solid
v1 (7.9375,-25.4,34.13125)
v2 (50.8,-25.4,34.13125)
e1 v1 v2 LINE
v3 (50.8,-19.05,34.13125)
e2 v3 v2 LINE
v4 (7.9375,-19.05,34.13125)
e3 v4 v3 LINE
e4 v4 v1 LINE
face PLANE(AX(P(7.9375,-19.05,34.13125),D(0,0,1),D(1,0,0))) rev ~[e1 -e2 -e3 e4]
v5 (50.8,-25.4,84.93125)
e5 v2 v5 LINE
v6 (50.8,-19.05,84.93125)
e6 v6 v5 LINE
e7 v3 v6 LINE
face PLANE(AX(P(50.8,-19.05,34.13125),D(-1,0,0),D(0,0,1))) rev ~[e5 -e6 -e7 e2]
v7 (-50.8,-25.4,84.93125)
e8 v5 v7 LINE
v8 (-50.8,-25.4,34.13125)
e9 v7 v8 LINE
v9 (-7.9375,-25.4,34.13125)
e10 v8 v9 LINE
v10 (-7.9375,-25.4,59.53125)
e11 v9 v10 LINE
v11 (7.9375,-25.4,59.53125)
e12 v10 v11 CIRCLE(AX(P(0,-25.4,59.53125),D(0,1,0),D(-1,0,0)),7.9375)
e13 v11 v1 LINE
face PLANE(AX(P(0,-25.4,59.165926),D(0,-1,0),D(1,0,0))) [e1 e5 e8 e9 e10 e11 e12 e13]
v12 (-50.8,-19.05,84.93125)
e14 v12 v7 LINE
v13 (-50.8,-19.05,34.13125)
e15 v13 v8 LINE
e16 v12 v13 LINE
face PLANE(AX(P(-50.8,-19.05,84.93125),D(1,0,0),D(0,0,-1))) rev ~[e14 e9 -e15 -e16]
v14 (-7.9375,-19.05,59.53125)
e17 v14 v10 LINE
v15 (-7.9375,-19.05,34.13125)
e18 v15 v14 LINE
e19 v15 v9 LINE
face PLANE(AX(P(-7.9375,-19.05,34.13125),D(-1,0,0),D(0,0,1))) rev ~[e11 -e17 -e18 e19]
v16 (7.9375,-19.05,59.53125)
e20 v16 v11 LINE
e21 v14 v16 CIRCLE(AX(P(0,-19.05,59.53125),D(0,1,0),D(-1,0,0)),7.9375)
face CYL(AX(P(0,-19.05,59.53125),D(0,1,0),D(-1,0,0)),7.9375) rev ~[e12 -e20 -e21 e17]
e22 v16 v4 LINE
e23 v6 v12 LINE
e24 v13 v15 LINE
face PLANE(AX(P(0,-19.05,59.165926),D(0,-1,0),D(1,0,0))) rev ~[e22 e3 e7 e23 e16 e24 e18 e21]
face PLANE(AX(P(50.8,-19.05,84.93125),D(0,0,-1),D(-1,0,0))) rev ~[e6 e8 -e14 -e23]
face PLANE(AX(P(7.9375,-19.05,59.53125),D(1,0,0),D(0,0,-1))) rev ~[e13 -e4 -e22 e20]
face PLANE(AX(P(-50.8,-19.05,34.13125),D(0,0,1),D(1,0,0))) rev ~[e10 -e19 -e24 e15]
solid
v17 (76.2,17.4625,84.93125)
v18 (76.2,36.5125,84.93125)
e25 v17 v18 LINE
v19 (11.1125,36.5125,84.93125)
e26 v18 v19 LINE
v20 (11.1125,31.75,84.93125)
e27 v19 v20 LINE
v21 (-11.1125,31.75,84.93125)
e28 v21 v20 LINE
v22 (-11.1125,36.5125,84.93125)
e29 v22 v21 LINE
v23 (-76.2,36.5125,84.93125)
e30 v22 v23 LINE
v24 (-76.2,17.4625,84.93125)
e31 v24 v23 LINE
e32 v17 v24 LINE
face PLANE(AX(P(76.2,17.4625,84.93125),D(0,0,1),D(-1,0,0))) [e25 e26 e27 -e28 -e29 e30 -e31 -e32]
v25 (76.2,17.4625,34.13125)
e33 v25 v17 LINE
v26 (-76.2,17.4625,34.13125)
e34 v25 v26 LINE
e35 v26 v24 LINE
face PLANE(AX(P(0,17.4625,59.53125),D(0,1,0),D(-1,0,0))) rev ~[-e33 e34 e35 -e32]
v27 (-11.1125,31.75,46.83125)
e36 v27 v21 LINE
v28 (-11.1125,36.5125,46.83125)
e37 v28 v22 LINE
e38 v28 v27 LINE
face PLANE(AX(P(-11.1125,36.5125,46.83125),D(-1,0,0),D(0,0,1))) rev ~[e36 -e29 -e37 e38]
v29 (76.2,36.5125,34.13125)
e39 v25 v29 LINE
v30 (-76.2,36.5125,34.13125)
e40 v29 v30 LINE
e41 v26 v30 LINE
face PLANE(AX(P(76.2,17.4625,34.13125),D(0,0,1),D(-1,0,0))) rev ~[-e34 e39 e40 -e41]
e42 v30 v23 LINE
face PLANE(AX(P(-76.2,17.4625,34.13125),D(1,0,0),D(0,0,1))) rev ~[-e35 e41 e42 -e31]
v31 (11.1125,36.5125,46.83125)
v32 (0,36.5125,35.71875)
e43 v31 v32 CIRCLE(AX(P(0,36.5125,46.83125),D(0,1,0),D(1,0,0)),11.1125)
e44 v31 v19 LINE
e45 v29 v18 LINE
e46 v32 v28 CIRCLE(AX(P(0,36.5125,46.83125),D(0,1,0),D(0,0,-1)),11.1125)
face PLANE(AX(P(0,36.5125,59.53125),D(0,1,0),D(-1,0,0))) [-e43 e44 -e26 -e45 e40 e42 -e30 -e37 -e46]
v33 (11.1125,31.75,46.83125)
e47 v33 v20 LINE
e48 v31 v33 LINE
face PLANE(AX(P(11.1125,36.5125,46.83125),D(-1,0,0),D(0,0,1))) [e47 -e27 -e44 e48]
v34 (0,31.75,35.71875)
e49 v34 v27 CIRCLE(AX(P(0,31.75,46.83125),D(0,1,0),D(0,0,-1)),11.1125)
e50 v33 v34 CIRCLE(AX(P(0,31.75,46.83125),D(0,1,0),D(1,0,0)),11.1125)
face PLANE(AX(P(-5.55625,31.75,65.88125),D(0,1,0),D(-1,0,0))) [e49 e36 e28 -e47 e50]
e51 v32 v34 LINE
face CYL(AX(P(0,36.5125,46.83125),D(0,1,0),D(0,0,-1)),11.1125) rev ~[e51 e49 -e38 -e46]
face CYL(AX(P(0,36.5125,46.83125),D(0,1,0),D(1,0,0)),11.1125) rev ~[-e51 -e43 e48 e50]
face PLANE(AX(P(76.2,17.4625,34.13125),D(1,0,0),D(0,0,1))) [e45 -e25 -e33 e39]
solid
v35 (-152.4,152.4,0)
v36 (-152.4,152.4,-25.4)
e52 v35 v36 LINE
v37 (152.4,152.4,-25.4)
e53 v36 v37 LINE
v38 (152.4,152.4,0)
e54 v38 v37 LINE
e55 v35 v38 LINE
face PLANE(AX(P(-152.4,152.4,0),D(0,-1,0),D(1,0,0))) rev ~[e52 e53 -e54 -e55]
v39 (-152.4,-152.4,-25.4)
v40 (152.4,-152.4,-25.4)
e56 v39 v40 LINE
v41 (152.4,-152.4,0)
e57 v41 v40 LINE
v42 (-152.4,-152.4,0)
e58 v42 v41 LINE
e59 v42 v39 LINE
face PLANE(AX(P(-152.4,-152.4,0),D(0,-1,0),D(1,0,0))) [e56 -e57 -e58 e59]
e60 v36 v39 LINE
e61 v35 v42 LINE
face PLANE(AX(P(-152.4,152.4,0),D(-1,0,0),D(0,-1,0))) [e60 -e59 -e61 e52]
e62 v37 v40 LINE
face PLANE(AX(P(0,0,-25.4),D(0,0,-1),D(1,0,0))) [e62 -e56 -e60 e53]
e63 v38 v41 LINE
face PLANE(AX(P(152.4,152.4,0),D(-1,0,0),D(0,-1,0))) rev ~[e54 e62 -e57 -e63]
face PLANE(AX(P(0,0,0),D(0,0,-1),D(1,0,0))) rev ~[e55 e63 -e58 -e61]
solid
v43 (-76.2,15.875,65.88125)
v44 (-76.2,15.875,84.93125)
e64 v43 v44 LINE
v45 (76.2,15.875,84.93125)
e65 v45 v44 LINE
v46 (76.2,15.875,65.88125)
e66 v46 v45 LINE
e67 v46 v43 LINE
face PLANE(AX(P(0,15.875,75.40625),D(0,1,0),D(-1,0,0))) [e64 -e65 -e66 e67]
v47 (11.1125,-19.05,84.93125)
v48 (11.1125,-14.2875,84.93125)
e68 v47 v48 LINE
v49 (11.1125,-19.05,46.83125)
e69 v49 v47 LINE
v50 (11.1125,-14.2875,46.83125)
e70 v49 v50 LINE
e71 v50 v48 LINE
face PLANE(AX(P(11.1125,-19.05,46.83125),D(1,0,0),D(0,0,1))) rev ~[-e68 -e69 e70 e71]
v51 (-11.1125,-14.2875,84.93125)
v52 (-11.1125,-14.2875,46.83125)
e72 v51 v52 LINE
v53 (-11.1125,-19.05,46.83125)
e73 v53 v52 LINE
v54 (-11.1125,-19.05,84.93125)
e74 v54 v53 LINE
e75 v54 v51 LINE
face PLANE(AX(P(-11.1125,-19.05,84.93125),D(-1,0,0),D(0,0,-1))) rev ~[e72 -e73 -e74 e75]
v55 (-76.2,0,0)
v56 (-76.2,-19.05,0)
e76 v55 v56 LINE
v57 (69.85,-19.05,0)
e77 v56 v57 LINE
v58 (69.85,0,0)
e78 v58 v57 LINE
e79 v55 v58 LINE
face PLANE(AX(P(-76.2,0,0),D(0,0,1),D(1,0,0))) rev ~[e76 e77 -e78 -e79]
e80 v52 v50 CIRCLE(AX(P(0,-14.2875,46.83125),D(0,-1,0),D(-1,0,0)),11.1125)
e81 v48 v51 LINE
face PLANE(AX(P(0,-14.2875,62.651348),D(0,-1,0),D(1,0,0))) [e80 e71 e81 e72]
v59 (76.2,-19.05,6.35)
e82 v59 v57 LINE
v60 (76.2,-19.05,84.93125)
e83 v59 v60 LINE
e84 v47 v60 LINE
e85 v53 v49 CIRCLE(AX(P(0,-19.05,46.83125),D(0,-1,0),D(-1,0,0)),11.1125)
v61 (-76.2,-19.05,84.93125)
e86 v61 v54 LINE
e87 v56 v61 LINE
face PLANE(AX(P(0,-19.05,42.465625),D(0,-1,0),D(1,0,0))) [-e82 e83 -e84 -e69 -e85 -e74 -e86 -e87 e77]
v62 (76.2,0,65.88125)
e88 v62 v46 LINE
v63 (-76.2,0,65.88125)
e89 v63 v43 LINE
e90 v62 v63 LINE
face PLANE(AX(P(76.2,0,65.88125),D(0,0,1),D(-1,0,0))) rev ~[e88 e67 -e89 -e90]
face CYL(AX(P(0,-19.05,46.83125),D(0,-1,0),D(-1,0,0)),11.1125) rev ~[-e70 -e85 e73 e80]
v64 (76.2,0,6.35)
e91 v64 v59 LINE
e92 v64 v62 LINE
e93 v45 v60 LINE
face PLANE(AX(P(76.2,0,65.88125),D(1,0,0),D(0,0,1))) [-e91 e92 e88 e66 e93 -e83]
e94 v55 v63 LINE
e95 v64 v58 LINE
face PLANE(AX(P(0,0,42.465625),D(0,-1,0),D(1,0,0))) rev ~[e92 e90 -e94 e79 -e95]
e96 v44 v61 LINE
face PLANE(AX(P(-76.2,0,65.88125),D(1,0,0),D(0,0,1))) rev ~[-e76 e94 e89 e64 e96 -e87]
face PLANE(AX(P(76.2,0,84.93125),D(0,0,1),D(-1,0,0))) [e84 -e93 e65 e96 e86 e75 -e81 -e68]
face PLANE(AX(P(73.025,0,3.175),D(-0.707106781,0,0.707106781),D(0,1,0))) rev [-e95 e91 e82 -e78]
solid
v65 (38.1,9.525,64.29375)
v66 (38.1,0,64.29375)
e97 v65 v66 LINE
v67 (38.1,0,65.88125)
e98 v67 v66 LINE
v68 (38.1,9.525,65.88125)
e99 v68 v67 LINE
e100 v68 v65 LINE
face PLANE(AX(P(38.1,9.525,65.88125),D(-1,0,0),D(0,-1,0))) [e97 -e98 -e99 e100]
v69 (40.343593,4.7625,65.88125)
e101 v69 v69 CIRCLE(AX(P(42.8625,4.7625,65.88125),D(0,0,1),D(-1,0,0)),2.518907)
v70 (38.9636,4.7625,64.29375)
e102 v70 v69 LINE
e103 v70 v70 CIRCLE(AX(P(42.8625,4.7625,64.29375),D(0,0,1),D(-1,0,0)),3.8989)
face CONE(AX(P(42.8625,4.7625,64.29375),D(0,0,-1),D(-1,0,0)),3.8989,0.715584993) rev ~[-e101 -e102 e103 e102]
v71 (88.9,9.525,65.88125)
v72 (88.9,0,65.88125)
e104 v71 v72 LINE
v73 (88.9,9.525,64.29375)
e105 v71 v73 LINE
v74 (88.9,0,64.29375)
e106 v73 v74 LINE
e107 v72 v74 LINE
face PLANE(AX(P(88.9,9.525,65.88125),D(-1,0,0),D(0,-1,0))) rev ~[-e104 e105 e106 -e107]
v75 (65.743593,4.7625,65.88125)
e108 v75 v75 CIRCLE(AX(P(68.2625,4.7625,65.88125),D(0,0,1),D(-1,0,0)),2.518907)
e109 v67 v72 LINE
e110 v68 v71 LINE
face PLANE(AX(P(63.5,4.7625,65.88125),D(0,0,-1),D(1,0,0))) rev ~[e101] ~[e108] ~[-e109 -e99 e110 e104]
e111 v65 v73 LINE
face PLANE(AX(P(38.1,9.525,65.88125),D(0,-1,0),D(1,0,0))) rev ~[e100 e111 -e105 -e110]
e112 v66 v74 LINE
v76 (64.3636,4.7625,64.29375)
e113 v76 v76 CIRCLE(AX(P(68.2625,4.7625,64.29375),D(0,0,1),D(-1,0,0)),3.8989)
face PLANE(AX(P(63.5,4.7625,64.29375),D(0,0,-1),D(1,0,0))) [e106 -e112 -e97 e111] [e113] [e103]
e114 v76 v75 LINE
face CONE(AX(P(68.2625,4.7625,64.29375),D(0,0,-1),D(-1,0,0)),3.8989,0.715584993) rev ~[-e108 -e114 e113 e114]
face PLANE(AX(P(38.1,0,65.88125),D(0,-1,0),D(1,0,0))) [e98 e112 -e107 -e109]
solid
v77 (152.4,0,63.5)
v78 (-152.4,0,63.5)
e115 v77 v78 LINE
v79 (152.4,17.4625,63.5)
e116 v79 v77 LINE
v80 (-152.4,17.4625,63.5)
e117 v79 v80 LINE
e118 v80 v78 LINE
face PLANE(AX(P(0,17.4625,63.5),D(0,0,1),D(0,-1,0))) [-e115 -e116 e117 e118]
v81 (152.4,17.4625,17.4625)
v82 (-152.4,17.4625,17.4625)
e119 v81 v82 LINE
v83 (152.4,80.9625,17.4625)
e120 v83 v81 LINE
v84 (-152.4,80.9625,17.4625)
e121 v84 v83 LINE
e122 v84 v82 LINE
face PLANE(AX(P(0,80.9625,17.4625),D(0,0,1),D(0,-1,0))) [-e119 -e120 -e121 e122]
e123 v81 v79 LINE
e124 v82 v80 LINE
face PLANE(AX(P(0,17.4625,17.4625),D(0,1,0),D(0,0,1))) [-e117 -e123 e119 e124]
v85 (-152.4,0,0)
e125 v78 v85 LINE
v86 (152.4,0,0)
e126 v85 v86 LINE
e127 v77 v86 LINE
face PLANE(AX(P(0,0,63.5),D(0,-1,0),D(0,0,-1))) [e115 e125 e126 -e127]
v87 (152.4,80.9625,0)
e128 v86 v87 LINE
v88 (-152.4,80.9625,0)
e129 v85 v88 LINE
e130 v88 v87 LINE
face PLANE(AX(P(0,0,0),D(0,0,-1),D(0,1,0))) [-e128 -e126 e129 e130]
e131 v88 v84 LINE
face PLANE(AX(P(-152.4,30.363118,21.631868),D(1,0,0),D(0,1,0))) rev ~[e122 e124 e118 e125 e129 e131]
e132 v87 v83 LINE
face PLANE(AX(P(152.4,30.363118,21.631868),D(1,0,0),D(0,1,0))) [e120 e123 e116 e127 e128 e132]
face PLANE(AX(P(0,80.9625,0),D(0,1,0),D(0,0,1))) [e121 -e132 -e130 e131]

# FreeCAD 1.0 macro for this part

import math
import FreeCAD as App
import Part
import Sketcher
from FreeCAD import Vector
Q = App.Units.Quantity


def edges_at(feature, points):
    """Names of the edges that pass closest to the given points."""
    edges = feature.Shape.Edges
    near = lambda p: min(range(len(edges)), key=lambda i: edges[i].distToShape(Part.Vertex(*p))[0])
    return sorted({f"Edge{near(p) + 1}" for p in points})


def add_polygon(sketch, points):
    """Adds a closed chain of lines whose ends are joined by coincident constraints."""
    first, n = sketch.GeometryCount, len(points)
    for a, b in zip(points, points[1:] + points[:1]):
        sketch.addGeometry(Part.LineSegment(App.Vector(*a, 0), App.Vector(*b, 0)), False)
    for i in range(n):
        sketch.addConstraint(Sketcher.Constraint("Coincident", first + i, 2, first + (i + 1) % n, 1))

doc = App.newDocument("Part")
body = doc.addObject("PartDesign::Body", "Body")

# Sketch on YZ plane
sketch1 = body.newObject("Sketcher::SketchObject", "Sketch")
sketch1.AttachmentSupport = (doc.getObject("YZ_Plane"), [""])
sketch1.MapMode = "FlatFace"
add_polygon(sketch1, [(0, 64), (0, 0), (81, 0), (81, 17), (17, 17), (17, 64)])  # lines 0-5
sketch1.addConstraint([
    Sketcher.Constraint("Vertical", 0),
    Sketcher.Constraint("Horizontal", 1),
    Sketcher.Constraint("Vertical", 2),
    Sketcher.Constraint("Horizontal", 3),
    Sketcher.Constraint("Vertical", 4),
    Sketcher.Constraint("Horizontal", 5),
    Sketcher.Constraint("Coincident", 0, 2, -1, 1),
    Sketcher.Constraint("Equal", 3, 0),
    Sketcher.Constraint("Equal", 5, 2),
    Sketcher.Constraint("DistanceX", 3, 2, 3, 1, Q("2.5 in")),
    Sketcher.Constraint("DistanceX", 1, 1, 1, 2, Q("3.1875 in")),
])
pad1 = body.newObject("PartDesign::Pad", "Pad")
pad1.Profile = sketch1
pad1.Length = Q("12 in")
pad1.Midplane = True
body2 = doc.addObject("PartDesign::Body", "Body001")

# Sketch on XY plane
sketch2 = body2.newObject("Sketcher::SketchObject", "Sketch001")
sketch2.AttachmentSupport = (doc.getObject("XY_Plane001"), [""])
sketch2.MapMode = "FlatFace"
add_polygon(sketch2, [(-152, -152), (-152, 152), (152, 152), (152, -152)])  # lines 0-3
sketch2.addConstraint([
    Sketcher.Constraint("Vertical", 0),
    Sketcher.Constraint("Horizontal", 1),
    Sketcher.Constraint("Vertical", 2),
    Sketcher.Constraint("Horizontal", 3),
    Sketcher.Constraint("Symmetric", 0, 2, 2, 2, -1, 1),
    Sketcher.Constraint("Equal", 3, 0),
    Sketcher.Constraint("DistanceX", 1, 1, 1, 2, Q("12 in")),
])
pad2 = body2.newObject("PartDesign::Pad", "Pad001")
pad2.Profile = sketch2
pad2.Length = Q("1 in")
pad2.Reversed = True
body3 = doc.addObject("PartDesign::Body", "Body002")

# Sketch on XZ plane
sketch3 = body3.newObject("Sketcher::SketchObject", "Sketch002")
sketch3.AttachmentSupport = (doc.getObject("XZ_Plane002"), [""])
sketch3.MapMode = "FlatFace"
add_polygon(sketch3, [(-76, 85), (-76, 0), (76, 0), (76, 85)])  # lines 0-3
sketch3.addConstraint([
    Sketcher.Constraint("Vertical", 0),
    Sketcher.Constraint("Horizontal", 1),
    Sketcher.Constraint("Vertical", 2),
    Sketcher.Constraint("Horizontal", 3),
    Sketcher.Constraint("Symmetric", 0, 2, 1, 2, -1, 1),
    Sketcher.Constraint("DistanceX", 1, 1, 1, 2, Q("6 in")),
    Sketcher.Constraint("DistanceY", 0, 2, 0, 1, Q("3.34375 in")),
])
pad3 = body3.newObject("PartDesign::Pad", "Pad002")
pad3.Profile = sketch3
pad3.Length = Q("0.75 in")

# Sketch on XZ plane
sketch4 = body3.newObject("Sketcher::SketchObject", "Sketch003")
sketch4.AttachmentSupport = (doc.getObject("XZ_Plane002"), [""])
sketch4.MapMode = "FlatFace"
add_polygon(sketch4, [(76, 85), (76, 66), (-76, 66), (-76, 85)])  # lines 0-3
sketch4.addConstraint([
    Sketcher.Constraint("Vertical", 0),
    Sketcher.Constraint("Horizontal", 1),
    Sketcher.Constraint("Vertical", 2),
    Sketcher.Constraint("Horizontal", 3),
    Sketcher.Constraint("DistanceX", 1, 2, 1, 1, Q("6 in")),
    Sketcher.Constraint("DistanceX", -1, 1, 0, 2, Q("3 in")),
    Sketcher.Constraint("DistanceY", 0, 2, 0, 1, Q("0.75 in")),
    Sketcher.Constraint("DistanceY", -1, 1, 0, 2, Q("2.59375 in")),
])
pad4 = body3.newObject("PartDesign::Pad", "Pad003")
pad4.Profile = sketch4
pad4.Length = Q("0.625 in")
pad4.Reversed = True
doc.recompute()

chamfer = body3.newObject("PartDesign::Chamfer", "Chamfer")
chamfer.Base = (pad4, edges_at(pad4, [(76.2, -9.525, 0)]))
chamfer.Size = Q("0.25 in")

# Sketch on XZ plane
sketch5 = body3.newObject("Sketcher::SketchObject", "Sketch004")
sketch5.AttachmentSupport = (doc.getObject("XZ_Plane002"), [""])
sketch5.MapMode = "FlatFace"
sketch5.AttachmentOffset = App.Placement(Vector(0, 0, 0.75 * 25.4), App.Rotation())
sketch5.addGeometry([
    Part.LineSegment(Vector(11, 85, 0), Vector(-11, 85, 0)),
    Part.LineSegment(Vector(-11, 85, 0), Vector(-11, 47, 0)),
    Part.ArcOfCircle(Part.Circle(Vector(0, 47, 0), Vector(0, 0, 1), 11), math.radians(180), math.radians(360)),
    Part.LineSegment(Vector(11, 47, 0), Vector(11, 85, 0)),
], False)
sketch5.addConstraint([
    Sketcher.Constraint("Coincident", 0, 2, 1, 1),
    Sketcher.Constraint("Tangent", 1, 2, 2, 1),
    Sketcher.Constraint("Tangent", 2, 2, 3, 1),
    Sketcher.Constraint("Coincident", 3, 2, 0, 1),
    Sketcher.Constraint("Horizontal", 0),
    Sketcher.Constraint("Vertical", 1),
    Sketcher.Constraint("Vertical", 3),
    Sketcher.Constraint("PointOnObject", 2, 3, -2),
    Sketcher.Constraint("DistanceY", 1, 2, 1, 1, Q("1.5 in")),
    Sketcher.Constraint("Radius", 2, Q("0.4375 in")),
    Sketcher.Constraint("DistanceY", -1, 1, 2, 3, Q("1.84375 in")),
])
pocket1 = body3.newObject("PartDesign::Pocket", "Pocket")
pocket1.Profile = sketch5
pocket1.Length = Q("0.1875 in")
body4 = doc.addObject("PartDesign::Body", "Body003")

# Sketch on XZ plane
sketch6 = body4.newObject("Sketcher::SketchObject", "Sketch005")
sketch6.AttachmentSupport = (doc.getObject("XZ_Plane003"), [""])
sketch6.MapMode = "FlatFace"
sketch6.AttachmentOffset = App.Placement(Vector(0, 0, -0.6875 * 25.4), App.Rotation())
add_polygon(sketch6, [(76, 85), (76, 34), (-76, 34), (-76, 85)])  # lines 0-3
sketch6.addConstraint([
    Sketcher.Constraint("Vertical", 0),
    Sketcher.Constraint("Horizontal", 1),
    Sketcher.Constraint("Vertical", 2),
    Sketcher.Constraint("Horizontal", 3),
    Sketcher.Constraint("DistanceX", 1, 2, 1, 1, Q("6 in")),
    Sketcher.Constraint("DistanceY", 0, 2, 0, 1, Q("2 in")),
    Sketcher.Constraint("DistanceX", -1, 1, 0, 2, Q("3 in")),
    Sketcher.Constraint("DistanceY", -1, 1, 0, 2, Q("1.34375 in")),
])
pad5 = body4.newObject("PartDesign::Pad", "Pad004")
pad5.Profile = sketch6
pad5.Length = Q("0.75 in")
pad5.Reversed = True

# Sketch on XZ plane
sketch7 = body4.newObject("Sketcher::SketchObject", "Sketch006")
sketch7.AttachmentSupport = (doc.getObject("XZ_Plane003"), [""])
sketch7.MapMode = "FlatFace"
sketch7.AttachmentOffset = App.Placement(Vector(0, 0, -1.4375 * 25.4), App.Rotation())
sketch7.addGeometry([
    Part.LineSegment(Vector(-11, 47, 0), Vector(-11, 85, 0)),  # 0
    Part.LineSegment(Vector(-11, 85, 0), Vector(11, 85, 0)),  # 1
    Part.LineSegment(Vector(11, 85, 0), Vector(11, 47, 0)),  # 2
    Part.ArcOfCircle(Part.Circle(Vector(0, 47, 0), Vector(0, 0, 1), 11), math.radians(-90), math.radians(0)),  # 3
    Part.ArcOfCircle(Part.Circle(Vector(0, 47, 0), Vector(0, 0, 1), 11), math.radians(180), math.radians(270)),  # 4
], False)
sketch7.addConstraint([
    Sketcher.Constraint("Coincident", 0, 2, 1, 1),
    Sketcher.Constraint("Coincident", 1, 2, 2, 1),
    Sketcher.Constraint("Tangent", 2, 2, 3, 2),
    Sketcher.Constraint("Tangent", 3, 1, 4, 2),
    Sketcher.Constraint("Tangent", 4, 1, 0, 1),
    Sketcher.Constraint("Vertical", 0),
    Sketcher.Constraint("Horizontal", 1),
    Sketcher.Constraint("Vertical", 2),
    Sketcher.Constraint("Equal", 3, 4),
    Sketcher.Constraint("PointOnObject", 3, 3, -2),
    Sketcher.Constraint("PointOnObject", 3, 1, -2),
    Sketcher.Constraint("DistanceY", 0, 1, 0, 2, Q("1.5 in")),
    Sketcher.Constraint("Radius", 3, Q("0.4375 in")),
    Sketcher.Constraint("DistanceY", -1, 1, 3, 3, Q("1.84375 in")),
])
pocket2 = body4.newObject("PartDesign::Pocket", "Pocket001")
pocket2.Profile = sketch7
pocket2.Length = Q("0.1875 in")
pocket2.Reversed = True
body5 = doc.addObject("PartDesign::Body", "Body004")

# Sketch on XY plane
sketch8 = body5.newObject("Sketcher::SketchObject", "Sketch007")
sketch8.AttachmentSupport = (doc.getObject("XY_Plane004"), [""])
sketch8.MapMode = "FlatFace"
sketch8.AttachmentOffset = App.Placement(Vector(0, 0, 2.59375 * 25.4), App.Rotation())
add_polygon(sketch8, [(38, 0), (38, 10), (89, 10), (89, 0)])  # lines 0-3
sketch8.addConstraint([
    Sketcher.Constraint("Vertical", 0),
    Sketcher.Constraint("Horizontal", 1),
    Sketcher.Constraint("Vertical", 2),
    Sketcher.Constraint("Horizontal", 3),
    Sketcher.Constraint("PointOnObject", 2, 2, -1),
    Sketcher.Constraint("DistanceX", 1, 1, 1, 2, Q("2 in")),
    Sketcher.Constraint("DistanceX", -1, 1, 0, 2, Q("1.5 in")),
    Sketcher.Constraint("DistanceY", 0, 1, 0, 2, Q("0.375 in")),
])
pad6 = body5.newObject("PartDesign::Pad", "Pad005")
pad6.Profile = sketch8
pad6.Length = Q("0.0625 in")
pad6.Reversed = True

# Sketch on XY plane
sketch9 = body5.newObject("Sketcher::SketchObject", "Sketch008")
sketch9.AttachmentSupport = (doc.getObject("XY_Plane004"), [""])
sketch9.MapMode = "FlatFace"
sketch9.AttachmentOffset = App.Placement(Vector(0, 0, 2.53125 * 25.4), App.Rotation())
sketch9.addGeometry([
    Part.Circle(Vector(42.9, 4.8, 0), Vector(0, 0, 1), 1.9),
    Part.Circle(Vector(68.3, 4.8, 0), Vector(0, 0, 1), 1.9),
], False)
sketch9.addConstraint([
    Sketcher.Constraint("Equal", 0, 1),
    Sketcher.Constraint("Horizontal", 0, 3, 1, 3),
    Sketcher.Constraint("DistanceX", 0, 3, 1, 3, Q("1 in")),
    Sketcher.Constraint("Diameter", 0, Q("0.1495 in")),
    Sketcher.Constraint("DistanceX", -1, 1, 0, 3, Q("1.6875 in")),
    Sketcher.Constraint("DistanceY", -1, 1, 0, 3, Q("0.1875 in")),
])
doc.recompute()
hole = body5.newObject("PartDesign::Hole", "Hole")
hole.Profile = sketch9
hole.ThreadType = "None"
hole.Diameter = Q("0.1495 in")
hole.DepthType = "ThroughAll"
hole.HoleCutType = "Countersink"
hole.HoleCutDiameter = Q("0.307 in")
hole.HoleCutCountersinkAngle = 82
hole.Reversed = True
body6 = doc.addObject("PartDesign::Body", "Body005")

# Sketch on XZ plane
sketch10 = body6.newObject("Sketcher::SketchObject", "Sketch009")
sketch10.AttachmentSupport = (doc.getObject("XZ_Plane005"), [""])
sketch10.MapMode = "FlatFace"
sketch10.AttachmentOffset = App.Placement(Vector(0, 0, 0.75 * 25.4), App.Rotation())
sketch10.addGeometry([
    Part.LineSegment(Vector(51, 34, 0), Vector(51, 85, 0)),  # 0
    Part.LineSegment(Vector(51, 85, 0), Vector(-51, 85, 0)),  # 1
    Part.LineSegment(Vector(-51, 85, 0), Vector(-51, 34, 0)),  # 2
    Part.LineSegment(Vector(-51, 34, 0), Vector(-8, 34, 0)),  # 3
    Part.LineSegment(Vector(-8, 34, 0), Vector(-8, 60, 0)),  # 4
    Part.ArcOfCircle(Part.Circle(Vector(0, 60, 0), Vector(0, 0, 1), 8), math.radians(0), math.radians(180)),  # 5
    Part.LineSegment(Vector(8, 60, 0), Vector(8, 34, 0)),  # 6
    Part.LineSegment(Vector(8, 34, 0), Vector(51, 34, 0)),  # 7
], False)
sketch10.addConstraint([
    Sketcher.Constraint("Coincident", 0, 2, 1, 1),
    Sketcher.Constraint("Coincident", 1, 2, 2, 1),
    Sketcher.Constraint("Coincident", 2, 2, 3, 1),
    Sketcher.Constraint("Coincident", 3, 2, 4, 1),
    Sketcher.Constraint("Tangent", 4, 2, 5, 2),
    Sketcher.Constraint("Tangent", 5, 1, 6, 1),
    Sketcher.Constraint("Coincident", 6, 2, 7, 1),
    Sketcher.Constraint("Coincident", 7, 2, 0, 1),
    Sketcher.Constraint("Vertical", 0),
    Sketcher.Constraint("Horizontal", 1),
    Sketcher.Constraint("Vertical", 2),
    Sketcher.Constraint("Horizontal", 3),
    Sketcher.Constraint("Vertical", 4),
    Sketcher.Constraint("Vertical", 6),
    Sketcher.Constraint("Horizontal", 7),
    Sketcher.Constraint("Symmetric", 3, 2, 6, 2, -2),
    Sketcher.Constraint("Equal", 3, 7),
    Sketcher.Constraint("DistanceX", 1, 2, 1, 1, Q("4 in")),
    Sketcher.Constraint("DistanceY", 0, 1, 0, 2, Q("2 in")),
    Sketcher.Constraint("DistanceY", 4, 1, 4, 2, Q("1 in")),
    Sketcher.Constraint("Radius", 5, Q("0.3125 in")),
    Sketcher.Constraint("DistanceY", -1, 1, 5, 3, Q("2.34375 in")),
])
pad7 = body6.newObject("PartDesign::Pad", "Pad006")
pad7.Profile = sketch10
pad7.Length = Q("0.25 in")

doc.recompute()
